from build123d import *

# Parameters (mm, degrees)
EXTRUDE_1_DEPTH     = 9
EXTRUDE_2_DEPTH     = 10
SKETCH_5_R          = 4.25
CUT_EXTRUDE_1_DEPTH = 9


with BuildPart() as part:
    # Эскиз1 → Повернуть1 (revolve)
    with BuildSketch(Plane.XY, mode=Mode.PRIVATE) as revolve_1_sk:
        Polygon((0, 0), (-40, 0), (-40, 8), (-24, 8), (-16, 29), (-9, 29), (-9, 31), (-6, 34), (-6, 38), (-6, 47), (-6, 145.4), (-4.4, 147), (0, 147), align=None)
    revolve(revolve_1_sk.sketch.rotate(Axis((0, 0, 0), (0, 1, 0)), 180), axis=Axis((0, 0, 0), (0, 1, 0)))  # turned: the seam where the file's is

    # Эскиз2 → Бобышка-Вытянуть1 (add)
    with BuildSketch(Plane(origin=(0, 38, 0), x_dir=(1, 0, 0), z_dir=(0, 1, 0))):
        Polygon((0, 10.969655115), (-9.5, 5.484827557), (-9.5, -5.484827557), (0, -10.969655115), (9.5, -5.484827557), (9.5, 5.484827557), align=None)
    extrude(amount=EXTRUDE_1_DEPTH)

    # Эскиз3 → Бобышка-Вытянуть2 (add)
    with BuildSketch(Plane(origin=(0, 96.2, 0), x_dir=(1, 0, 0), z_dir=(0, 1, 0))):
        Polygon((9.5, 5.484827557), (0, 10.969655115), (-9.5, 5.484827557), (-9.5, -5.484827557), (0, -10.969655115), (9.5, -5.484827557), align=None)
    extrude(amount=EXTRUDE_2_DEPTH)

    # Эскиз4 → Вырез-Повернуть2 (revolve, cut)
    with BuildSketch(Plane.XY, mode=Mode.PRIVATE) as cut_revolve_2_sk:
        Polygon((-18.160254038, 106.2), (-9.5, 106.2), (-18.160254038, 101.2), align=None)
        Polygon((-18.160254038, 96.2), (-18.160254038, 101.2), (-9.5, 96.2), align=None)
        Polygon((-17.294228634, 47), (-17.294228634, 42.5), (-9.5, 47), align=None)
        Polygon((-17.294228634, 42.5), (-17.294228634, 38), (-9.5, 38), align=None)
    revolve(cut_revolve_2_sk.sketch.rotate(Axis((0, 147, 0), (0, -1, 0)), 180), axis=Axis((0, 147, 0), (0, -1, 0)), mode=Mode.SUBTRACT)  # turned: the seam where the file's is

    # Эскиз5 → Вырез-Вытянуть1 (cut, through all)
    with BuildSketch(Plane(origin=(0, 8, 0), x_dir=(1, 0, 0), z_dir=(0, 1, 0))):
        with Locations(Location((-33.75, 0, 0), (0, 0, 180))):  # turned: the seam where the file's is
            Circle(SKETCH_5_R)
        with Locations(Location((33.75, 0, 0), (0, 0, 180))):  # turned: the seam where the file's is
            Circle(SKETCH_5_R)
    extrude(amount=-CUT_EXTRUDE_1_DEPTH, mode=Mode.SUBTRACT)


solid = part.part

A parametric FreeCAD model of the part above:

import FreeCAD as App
import Part
import Sketcher
from FreeCAD import Vector
Q = App.Units.Quantity


def add_polygon(sketch, points):
    """Adds a closed chain of lines whose ends are joined by coincident constraints."""
    first, n = sketch.GeometryCount, len(points)
    for a, b in zip(points, points[1:] + points[:1]):
        sketch.addGeometry(Part.LineSegment(App.Vector(*a, 0), App.Vector(*b, 0)), False)
    for i in range(n):
        sketch.addConstraint(Sketcher.Constraint("Coincident", first + i, 2, first + (i + 1) % n, 1))

doc = App.newDocument("Part")
body = doc.addObject("PartDesign::Body", "Body")

sketch1 = body.newObject("Sketcher::SketchObject", "Sketch")
sketch1.AttachmentSupport = (doc.getObject("XY_Plane"), [""])
sketch1.MapMode = "FlatFace"
add_polygon(sketch1, [(-40, 0), (0, 0), (0, 147), (-4.4, 147), (-6, 145.4), (-6, 34), (-9, 31), (-9, 29), (-16, 29), (-24, 8), (-40, 8)])
sketch1.addConstraint(Sketcher.Constraint("Horizontal", 0))
sketch1.addConstraint(Sketcher.Constraint("Vertical", 1))
sketch1.addConstraint(Sketcher.Constraint("Horizontal", 2))
sketch1.addConstraint(Sketcher.Constraint("Vertical", 4))
sketch1.addConstraint(Sketcher.Constraint("Vertical", 6))
sketch1.addConstraint(Sketcher.Constraint("Horizontal", 7))
sketch1.addConstraint(Sketcher.Constraint("Horizontal", 9))
sketch1.addConstraint(Sketcher.Constraint("Vertical", 10))
sketch1.addConstraint(Sketcher.Constraint("Coincident", 0, 2, -1, 1))
sketch1.addConstraint(Sketcher.Constraint("Parallel", 3, 5))
sketch1.addConstraint(Sketcher.Constraint("DistanceX", 0, 1, 0, 2, 40.0))
sketch1.addConstraint(Sketcher.Constraint("DistanceX", 7, 2, 7, 1, 7.0))
sketch1.addConstraint(Sketcher.Constraint("DistanceX", 9, 2, 9, 1, 16.0))
sketch1.addConstraint(Sketcher.Constraint("DistanceY", 1, 1, 1, 2, 147.0))
sketch1.addConstraint(Sketcher.Constraint("DistanceY", 6, 2, 6, 1, 2.0))
sketch1.addConstraint(Sketcher.Constraint("DistanceY", 10, 2, 10, 1, 8.0))
sketch1.addConstraint(Sketcher.Constraint("Angle", 3, Q("-135 deg")))
sketch1.addConstraint(Sketcher.Constraint("DistanceX", 2, 2, 2, 1, 4.4))
sketch1.addConstraint(Sketcher.Constraint("DistanceY", 4, 2, 4, 1, 111.4))
sketch1.addConstraint(Sketcher.Constraint("DistanceX", 3, 2, -1, 1, 6.0))
sketch1.addConstraint(Sketcher.Constraint("DistanceX", 5, 2, -1, 1, 9.0))
revolution = body.newObject("PartDesign::Revolution", "Revolution")
revolution.Profile = sketch1
revolution.ReferenceAxis = (sketch1, ["V_Axis"])
revolution.Angle = 360

sketch2 = body.newObject("Sketcher::SketchObject", "Sketch001")
sketch2.AttachmentSupport = (doc.getObject("XZ_Plane"), [""])
sketch2.MapMode = "FlatFace"
sketch2.AttachmentOffset = App.Placement(Vector(0, 0, -38), App.Rotation())
add_polygon(sketch2, [(0, -10.969655), (-9.5, -5.484828), (-9.5, 5.484828), (0, 10.969655), (9.5, 5.484828), (9.5, -5.484828)])
sketch2.addConstraint(Sketcher.Constraint("Vertical", 1))
sketch2.addConstraint(Sketcher.Constraint("Vertical", 4))
sketch2.addConstraint(Sketcher.Constraint("Symmetric", 0, 2, 3, 2, -1, 1))
sketch2.addConstraint(Sketcher.Constraint("Symmetric", 2, 2, 5, 2, -1, 1))
sketch2.addConstraint(Sketcher.Constraint("PointOnObject", 2, 2, -2))
sketch2.addConstraint(Sketcher.Constraint("Parallel", 2, 5))
sketch2.addConstraint(Sketcher.Constraint("Horizontal", 1, 2, 3, 2))
sketch2.addConstraint(Sketcher.Constraint("Angle", 0, Q("150 deg")))
sketch2.addConstraint(Sketcher.Constraint("DistanceX", 1, 2, 3, 2, 19.0))
sketch2.addConstraint(Sketcher.Constraint("DistanceY", 1, 1, 1, 2, 10.969655))
pad1 = body.newObject("PartDesign::Pad", "Pad")
pad1.Profile = sketch2
pad1.Length = 9
pad1.Reversed = True

sketch3 = body.newObject("Sketcher::SketchObject", "Sketch002")
sketch3.AttachmentSupport = (doc.getObject("XZ_Plane"), [""])
sketch3.MapMode = "FlatFace"
sketch3.AttachmentOffset = App.Placement(Vector(0, 0, -96.2), App.Rotation())
add_polygon(sketch3, [(9.5, -5.484828), (0, -10.969655), (-9.5, -5.484828), (-9.5, 5.484828), (0, 10.969655), (9.5, 5.484828)])
sketch3.addConstraint(Sketcher.Constraint("Vertical", 2))
sketch3.addConstraint(Sketcher.Constraint("Vertical", 5))
sketch3.addConstraint(Sketcher.Constraint("Symmetric", 0, 2, 3, 2, -1, 1))
sketch3.addConstraint(Sketcher.Constraint("Symmetric", 1, 2, 4, 2, -1, 1))
sketch3.addConstraint(Sketcher.Constraint("PointOnObject", 0, 2, -2))
sketch3.addConstraint(Sketcher.Constraint("Parallel", 0, 3))
sketch3.addConstraint(Sketcher.Constraint("Horizontal", 2, 2, 4, 2))
sketch3.addConstraint(Sketcher.Constraint("Angle", 0, Q("-150 deg")))
sketch3.addConstraint(Sketcher.Constraint("DistanceX", 2, 2, 4, 2, 19.0))
sketch3.addConstraint(Sketcher.Constraint("DistanceY", 2, 1, 2, 2, 10.969655))
pad2 = body.newObject("PartDesign::Pad", "Pad001")
pad2.Profile = sketch3
pad2.Length = 10
pad2.Reversed = True

sketch4 = body.newObject("Sketcher::SketchObject", "Sketch003")
sketch4.AttachmentSupport = (doc.getObject("XY_Plane"), [""])
sketch4.MapMode = "FlatFace"
add_polygon(sketch4, [(-9.5, 106.2), (-18.160254, 106.2), (-18.160254, 101.2)])
add_polygon(sketch4, [(-18.160254, 101.2), (-18.160254, 96.2), (-9.5, 96.2)])
add_polygon(sketch4, [(-17.294229, 47), (-17.294229, 42.5), (-9.5, 47)])
add_polygon(sketch4, [(-17.294229, 42.5), (-17.294229, 38), (-9.5, 38)])
sketch4.addConstraint(Sketcher.Constraint("Horizontal", 0))
sketch4.addConstraint(Sketcher.Constraint("Vertical", 1))
sketch4.addConstraint(Sketcher.Constraint("Vertical", 3))
sketch4.addConstraint(Sketcher.Constraint("Horizontal", 4))
sketch4.addConstraint(Sketcher.Constraint("Vertical", 6))
sketch4.addConstraint(Sketcher.Constraint("Horizontal", 8))
sketch4.addConstraint(Sketcher.Constraint("Vertical", 9))
sketch4.addConstraint(Sketcher.Constraint("Horizontal", 10))
sketch4.addConstraint(Sketcher.Constraint("Coincident", 5, 2, 1, 2))
sketch4.addConstraint(Sketcher.Constraint("Coincident", 11, 2, 6, 2))
sketch4.addConstraint(Sketcher.Constraint("Parallel", 2, 7))
sketch4.addConstraint(Sketcher.Constraint("Parallel", 5, 11))
sketch4.addConstraint(Sketcher.Constraint("Vertical", 2, 2, 4, 2))
sketch4.addConstraint(Sketcher.Constraint("Vertical", 4, 2, 7, 2))
sketch4.addConstraint(Sketcher.Constraint("Vertical", 7, 2, 10, 2))
sketch4.addConstraint(Sketcher.Constraint("Equal", 1, 3))
sketch4.addConstraint(Sketcher.Constraint("DistanceY", 1, 2, 1, 1, 5.0))
sketch4.addConstraint(Sketcher.Constraint("Angle", 2, Q("30 deg")))
sketch4.addConstraint(Sketcher.Constraint("Distance", 7, 9.0))
sketch4.addConstraint(Sketcher.Constraint("DistanceY", -1, 1, 7, 2, 47.0))
sketch4.addConstraint(Sketcher.Constraint("DistanceY", -1, 1, 0, 2, 106.2))
sketch4.addConstraint(Sketcher.Constraint("DistanceX", 2, 2, -1, 1, 9.5))
groove = body.newObject("PartDesign::Groove", "Groove")
groove.Profile = sketch4
groove.ReferenceAxis = (sketch4, ["V_Axis"])
groove.Angle = 360

sketch5 = body.newObject("Sketcher::SketchObject", "Sketch004")
sketch5.AttachmentSupport = (doc.getObject("XZ_Plane"), [""])
sketch5.MapMode = "FlatFace"
sketch5.AttachmentOffset = App.Placement(Vector(0, 0, -8), App.Rotation())
sketch5.addGeometry(Part.Circle(Vector(-33.75, 0, 0), Vector(0, 0, 1), 4.25), False)
sketch5.addGeometry(Part.Circle(Vector(33.75, 0, 0), Vector(0, 0, 1), 4.25), False)
sketch5.addConstraint(Sketcher.Constraint("Equal", 0, 1))
sketch5.addConstraint(Sketcher.Constraint("Symmetric", 0, 3, 1, 3, -1, 1))
sketch5.addConstraint(Sketcher.Constraint("PointOnObject", 0, 3, -1))
sketch5.addConstraint(Sketcher.Constraint("Diameter", 0, 8.5))
sketch5.addConstraint(Sketcher.Constraint("DistanceX", 0, 3, 1, 3, 67.5))
pocket1 = body.newObject("PartDesign::Pocket", "Pocket")
pocket1.Profile = sketch5
pocket1.Type = "ThroughAll"
pocket1.Reversed = True

doc.recompute()
